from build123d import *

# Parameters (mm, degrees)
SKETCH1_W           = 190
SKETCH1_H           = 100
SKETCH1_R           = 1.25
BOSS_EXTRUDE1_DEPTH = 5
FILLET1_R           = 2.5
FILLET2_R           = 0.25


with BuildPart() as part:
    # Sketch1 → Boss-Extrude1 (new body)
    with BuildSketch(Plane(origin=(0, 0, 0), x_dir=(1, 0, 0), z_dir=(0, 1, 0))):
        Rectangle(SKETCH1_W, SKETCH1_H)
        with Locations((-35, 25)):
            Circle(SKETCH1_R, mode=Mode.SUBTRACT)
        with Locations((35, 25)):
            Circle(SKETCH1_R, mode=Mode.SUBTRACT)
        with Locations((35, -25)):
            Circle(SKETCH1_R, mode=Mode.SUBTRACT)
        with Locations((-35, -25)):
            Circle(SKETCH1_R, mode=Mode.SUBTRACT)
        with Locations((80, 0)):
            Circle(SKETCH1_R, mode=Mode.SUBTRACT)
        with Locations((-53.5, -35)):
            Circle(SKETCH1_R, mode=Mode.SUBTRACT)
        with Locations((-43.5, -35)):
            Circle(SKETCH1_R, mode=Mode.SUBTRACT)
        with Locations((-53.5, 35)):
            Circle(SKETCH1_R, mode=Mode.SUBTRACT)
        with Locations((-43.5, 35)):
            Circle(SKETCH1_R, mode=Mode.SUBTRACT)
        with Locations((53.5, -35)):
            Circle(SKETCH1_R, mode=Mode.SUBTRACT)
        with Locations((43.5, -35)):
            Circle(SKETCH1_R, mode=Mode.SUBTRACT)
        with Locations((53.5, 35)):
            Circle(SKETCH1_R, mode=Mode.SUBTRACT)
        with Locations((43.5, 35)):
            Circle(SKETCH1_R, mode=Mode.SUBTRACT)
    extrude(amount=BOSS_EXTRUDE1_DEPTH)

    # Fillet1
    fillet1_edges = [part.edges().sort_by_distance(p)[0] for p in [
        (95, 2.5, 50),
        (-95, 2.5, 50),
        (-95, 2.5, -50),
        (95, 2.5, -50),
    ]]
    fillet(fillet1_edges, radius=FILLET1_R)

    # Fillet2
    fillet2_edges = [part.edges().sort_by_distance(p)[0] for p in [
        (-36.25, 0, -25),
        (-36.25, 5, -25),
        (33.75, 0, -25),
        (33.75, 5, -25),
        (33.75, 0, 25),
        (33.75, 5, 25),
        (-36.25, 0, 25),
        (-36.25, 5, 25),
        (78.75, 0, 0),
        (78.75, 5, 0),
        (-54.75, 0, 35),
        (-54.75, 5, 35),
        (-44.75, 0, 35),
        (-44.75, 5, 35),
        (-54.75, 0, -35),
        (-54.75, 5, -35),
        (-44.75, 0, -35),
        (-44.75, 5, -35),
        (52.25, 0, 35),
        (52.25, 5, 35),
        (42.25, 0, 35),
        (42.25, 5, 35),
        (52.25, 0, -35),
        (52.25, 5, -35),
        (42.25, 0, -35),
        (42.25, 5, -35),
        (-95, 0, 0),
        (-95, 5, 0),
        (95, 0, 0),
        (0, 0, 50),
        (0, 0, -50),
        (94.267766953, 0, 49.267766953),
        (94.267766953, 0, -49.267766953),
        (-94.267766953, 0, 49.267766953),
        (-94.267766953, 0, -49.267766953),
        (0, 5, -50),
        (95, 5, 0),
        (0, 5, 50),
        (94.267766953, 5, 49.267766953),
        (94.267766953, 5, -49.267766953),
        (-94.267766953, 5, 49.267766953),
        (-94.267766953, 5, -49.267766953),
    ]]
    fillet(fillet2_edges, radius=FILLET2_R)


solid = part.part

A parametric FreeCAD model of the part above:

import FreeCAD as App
import Part
import Sketcher

V = App.Vector
Q = App.Units.Quantity


def edges_at(feature, points):
    """Names of the edges that pass closest to the given points."""
    edges = feature.Shape.Edges
    near = lambda p: min(range(len(edges)), key=lambda i: edges[i].distToShape(Part.Vertex(*p))[0])
    return sorted({f"Edge{near(p) + 1}" for p in points})


def add_polygon(sketch, points):
    """Adds a closed chain of lines whose ends are joined by coincident constraints."""
    first, n = sketch.GeometryCount, len(points)
    for a, b in zip(points, points[1:] + points[:1]):
        sketch.addGeometry(Part.LineSegment(App.Vector(*a, 0), App.Vector(*b, 0)), False)
    for i in range(n):
        sketch.addConstraint(Sketcher.Constraint("Coincident", first + i, 2, first + (i + 1) % n, 1))

doc = App.newDocument("Part")
params = doc.addObject("Spreadsheet::Sheet", "Params")
for row, (alias, value) in enumerate([
    ("sketch1_diameter", "2.5 mm"),
    ("sketch1_width", "190 mm"),
    ("sketch1_height", "100 mm"),
    ("pad1_length", "5 mm"),
    ("fillet_radius", "2.5 mm"),
    ("fillet2_radius", "0.25 mm"),
], start=1):
    params.set(f"A{row}", alias)
    params.set(f"B{row}", "=" + value)
    params.setAlias(f"B{row}", alias)

body = doc.addObject("PartDesign::Body", "Body")

# Sketch on XZ plane
sketch1 = body.newObject("Sketcher::SketchObject", "Sketch")
sketch1.AttachmentSupport = (doc.getObject("XZ_Plane"), [""])
sketch1.MapMode = "FlatFace"
add_polygon(sketch1, [(-95, -50), (-95, 50), (95, 50), (95, -50)])  # lines 0-3
sketch1.addGeometry(Part.Circle(V(-53.5, 35, 0), V(0, 0, 1), 1.25), False)  # 4
sketch1.addGeometry(Part.Circle(V(-43.5, 35, 0), V(0, 0, 1), 1.25), False)  # 5
sketch1.addGeometry(Part.Circle(V(-35, 25, 0), V(0, 0, 1), 1.25), False)  # 6
sketch1.addGeometry(Part.Circle(V(43.5, 35, 0), V(0, 0, 1), 1.25), False)  # 7
sketch1.addGeometry(Part.Circle(V(35, 25, 0), V(0, 0, 1), 1.25), False)  # 8
sketch1.addGeometry(Part.Circle(V(53.5, 35, 0), V(0, 0, 1), 1.25), False)  # 9
sketch1.addGeometry(Part.Circle(V(-35, -25, 0), V(0, 0, 1), 1.25), False)  # 10
sketch1.addGeometry(Part.Circle(V(-53.5, -35, 0), V(0, 0, 1), 1.25), False)  # 11
sketch1.addGeometry(Part.Circle(V(-43.5, -35, 0), V(0, 0, 1), 1.25), False)  # 12
sketch1.addGeometry(Part.Circle(V(80, 0, 0), V(0, 0, 1), 1.25), False)  # 13
sketch1.addGeometry(Part.Circle(V(35, -25, 0), V(0, 0, 1), 1.25), False)  # 14
sketch1.addGeometry(Part.Circle(V(43.5, -35, 0), V(0, 0, 1), 1.25), False)  # 15
sketch1.addGeometry(Part.Circle(V(53.5, -35, 0), V(0, 0, 1), 1.25), False)  # 16
sketch1.addConstraint(Sketcher.Constraint("Vertical", 0))
sketch1.addConstraint(Sketcher.Constraint("Horizontal", 1))
sketch1.addConstraint(Sketcher.Constraint("Vertical", 2))
sketch1.addConstraint(Sketcher.Constraint("Horizontal", 3))
sketch1.addConstraint(Sketcher.Constraint("Equal", 4, 5))
sketch1.addConstraint(Sketcher.Constraint("Equal", 5, 6))
sketch1.addConstraint(Sketcher.Constraint("Equal", 6, 7))
sketch1.addConstraint(Sketcher.Constraint("Equal", 7, 8))
sketch1.addConstraint(Sketcher.Constraint("Equal", 8, 9))
sketch1.addConstraint(Sketcher.Constraint("Equal", 9, 10))
sketch1.addConstraint(Sketcher.Constraint("Equal", 10, 11))
sketch1.addConstraint(Sketcher.Constraint("Equal", 11, 12))
sketch1.addConstraint(Sketcher.Constraint("Equal", 12, 13))
sketch1.addConstraint(Sketcher.Constraint("Equal", 13, 14))
sketch1.addConstraint(Sketcher.Constraint("Equal", 14, 15))
sketch1.addConstraint(Sketcher.Constraint("Equal", 15, 16))
sketch1.addConstraint(Sketcher.Constraint("Symmetric", 8, 3, 10, 3, -1, 1))
sketch1.addConstraint(Sketcher.Constraint("Symmetric", 9, 3, 11, 3, -1, 1))
sketch1.addConstraint(Sketcher.Constraint("Symmetric", 7, 3, 12, 3, -1, 1))
sketch1.addConstraint(Sketcher.Constraint("Symmetric", 6, 3, 14, 3, -1, 1))
sketch1.addConstraint(Sketcher.Constraint("Symmetric", 5, 3, 15, 3, -1, 1))
sketch1.addConstraint(Sketcher.Constraint("Symmetric", 4, 3, 16, 3, -1, 1))
sketch1.addConstraint(Sketcher.Constraint("Symmetric", 0, 2, 2, 2, -1, 1))
sketch1.addConstraint(Sketcher.Constraint("Symmetric", 5, 3, 7, 3, -2))
sketch1.addConstraint(Sketcher.Constraint("Symmetric", 6, 3, 8, 3, -2))
sketch1.addConstraint(Sketcher.Constraint("Symmetric", 4, 3, 9, 3, -2))
sketch1.addConstraint(Sketcher.Constraint("PointOnObject", 13, 3, -1))
sketch1.addConstraint(Sketcher.Constraint("Horizontal", 4, 3, 5, 3))
sketch1.addConstraint(Sketcher.Constraint("Diameter", 4, Q("2.5 mm")))
sketch1.addConstraint(Sketcher.Constraint("DistanceX", 1, 1, 1, 2, Q("190 mm")))
sketch1.addConstraint(Sketcher.Constraint("DistanceY", 0, 1, 0, 2, Q("100 mm")))
sketch1.addConstraint(Sketcher.Constraint("DistanceY", -1, 1, 4, 3, Q("35 mm")))
sketch1.addConstraint(Sketcher.Constraint("DistanceX", 6, 3, -1, 1, Q("35 mm")))
sketch1.addConstraint(Sketcher.Constraint("DistanceY", -1, 1, 6, 3, Q("25 mm")))
sketch1.addConstraint(Sketcher.Constraint("DistanceX", -1, 1, 13, 3, Q("80 mm")))
sketch1.addConstraint(Sketcher.Constraint("DistanceX", 4, 3, 5, 3, Q("10 mm")))
sketch1.addConstraint(Sketcher.Constraint("DistanceX", 5, 3, 7, 3, Q("87 mm")))
sketch1.setExpression("Constraints[32]", "Params.sketch1_diameter")
sketch1.setExpression("Constraints[33]", "Params.sketch1_width")
sketch1.setExpression("Constraints[34]", "Params.sketch1_height")
pad1 = body.newObject("PartDesign::Pad", "Pad")
pad1.Profile = sketch1
pad1.setExpression("Length", "Params.pad1_length")
pad1.Reversed = True
doc.recompute()

fillet = body.newObject("PartDesign::Fillet", "Fillet")
fillet.Base = (pad1, edges_at(pad1, [
    (95, 2.5, 50),
    (-95, 2.5, 50),
    (-95, 2.5, -50),
    (95, 2.5, -50),
]))
fillet.setExpression("Radius", "Params.fillet_radius")
doc.recompute()

fillet2 = body.newObject("PartDesign::Fillet", "Fillet001")
fillet2.Base = (fillet, edges_at(fillet, [
    (-36.25, 0, -25),
    (-36.25, 5, -25),
    (33.75, 0, -25),
    (33.75, 5, -25),
    (33.75, 0, 25),
    (33.75, 5, 25),
    (-36.25, 0, 25),
    (-36.25, 5, 25),
    (78.75, 0, 0),
    (78.75, 5, 0),
    (-54.75, 0, 35),
    (-54.75, 5, 35),
    (-44.75, 0, 35),
    (-44.75, 5, 35),
    (-54.75, 0, -35),
    (-54.75, 5, -35),
    (-44.75, 0, -35),
    (-44.75, 5, -35),
    (52.25, 0, 35),
    (52.25, 5, 35),
    (42.25, 0, 35),
    (42.25, 5, 35),
    (52.25, 0, -35),
    (52.25, 5, -35),
    (42.25, 0, -35),
    (42.25, 5, -35),
    (-95, 0, 0),
    (-95, 5, 0),
    (95, 0, 0),
    (0, 0, 50),
    (0, 0, -50),
    (94.268, 0, 49.268),
    (94.268, 0, -49.268),
    (-94.268, 0, 49.268),
    (-94.268, 0, -49.268),
    (0, 5, -50),
    (95, 5, 0),
    (0, 5, 50),
    (94.268, 5, 49.268),
    (94.268, 5, -49.268),
    (-94.268, 5, 49.268),
    (-94.268, 5, -49.268),
]))
fillet2.setExpression("Radius", "Params.fillet2_radius")

doc.recompute()
